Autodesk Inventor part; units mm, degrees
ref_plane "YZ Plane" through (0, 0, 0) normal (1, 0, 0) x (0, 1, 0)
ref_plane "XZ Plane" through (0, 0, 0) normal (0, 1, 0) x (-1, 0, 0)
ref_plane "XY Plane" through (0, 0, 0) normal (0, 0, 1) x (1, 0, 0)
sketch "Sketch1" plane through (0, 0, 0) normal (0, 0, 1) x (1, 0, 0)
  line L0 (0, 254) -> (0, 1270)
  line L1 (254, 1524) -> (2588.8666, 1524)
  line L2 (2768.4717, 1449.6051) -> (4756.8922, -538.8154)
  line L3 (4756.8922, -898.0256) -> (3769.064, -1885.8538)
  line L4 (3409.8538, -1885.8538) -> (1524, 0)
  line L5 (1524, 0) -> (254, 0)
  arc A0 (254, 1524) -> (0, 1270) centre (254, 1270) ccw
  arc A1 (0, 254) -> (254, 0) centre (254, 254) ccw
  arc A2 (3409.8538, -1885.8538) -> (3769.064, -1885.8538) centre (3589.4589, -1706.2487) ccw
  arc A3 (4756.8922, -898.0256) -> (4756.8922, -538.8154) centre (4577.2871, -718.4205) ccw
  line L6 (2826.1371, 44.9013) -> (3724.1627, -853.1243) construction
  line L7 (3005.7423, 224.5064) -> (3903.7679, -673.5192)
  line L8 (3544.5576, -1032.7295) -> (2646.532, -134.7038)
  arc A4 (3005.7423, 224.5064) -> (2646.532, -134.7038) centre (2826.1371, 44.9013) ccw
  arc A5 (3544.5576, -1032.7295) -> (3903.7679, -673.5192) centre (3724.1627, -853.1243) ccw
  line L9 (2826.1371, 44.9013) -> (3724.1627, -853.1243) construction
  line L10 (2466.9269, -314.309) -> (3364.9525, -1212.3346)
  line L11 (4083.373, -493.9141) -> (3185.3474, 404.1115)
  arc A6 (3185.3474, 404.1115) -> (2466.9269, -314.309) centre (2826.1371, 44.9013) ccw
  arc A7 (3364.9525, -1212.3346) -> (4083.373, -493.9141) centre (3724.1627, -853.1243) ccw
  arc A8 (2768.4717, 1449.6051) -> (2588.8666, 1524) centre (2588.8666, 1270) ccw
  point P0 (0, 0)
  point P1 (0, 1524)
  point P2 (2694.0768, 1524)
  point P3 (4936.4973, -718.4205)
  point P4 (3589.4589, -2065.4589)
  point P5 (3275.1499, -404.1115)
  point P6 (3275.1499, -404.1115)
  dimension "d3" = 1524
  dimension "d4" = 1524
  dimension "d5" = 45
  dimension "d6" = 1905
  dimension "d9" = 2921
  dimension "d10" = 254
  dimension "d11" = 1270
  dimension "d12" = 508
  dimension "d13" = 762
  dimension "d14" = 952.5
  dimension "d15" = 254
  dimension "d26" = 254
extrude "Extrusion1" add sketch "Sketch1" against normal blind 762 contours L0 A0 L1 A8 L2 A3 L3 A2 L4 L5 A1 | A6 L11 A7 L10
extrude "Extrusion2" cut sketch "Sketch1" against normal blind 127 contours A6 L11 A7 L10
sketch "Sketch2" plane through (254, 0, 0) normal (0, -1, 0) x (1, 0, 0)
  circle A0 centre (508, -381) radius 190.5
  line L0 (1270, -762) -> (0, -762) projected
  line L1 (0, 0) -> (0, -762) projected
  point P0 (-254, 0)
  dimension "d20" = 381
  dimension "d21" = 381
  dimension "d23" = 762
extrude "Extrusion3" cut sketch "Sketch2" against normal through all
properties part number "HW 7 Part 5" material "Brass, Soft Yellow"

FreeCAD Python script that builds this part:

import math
import FreeCAD as App
import Part
import Sketcher

V = App.Vector
Q = App.Units.Quantity

doc = App.newDocument("Part")
params = doc.addObject("Spreadsheet::Sheet", "Params")
for row, (alias, value) in enumerate([
    ("sketch1_radius", "10 in"),
    ("sketch1_width", "50 in"),
    ("sketch1_length", "50 in"),
    ("sketch1_length2", "105 in"),
    ("sketch1_length3", "55 in"),
    ("pad1_length", "30 in"),
    ("sketch2_radius", "20 in"),
    ("sketch2_radius2", "10 in"),
    ("sketch2_length", "50 in"),
    ("pocket1_length", "5 in"),
    ("sketch3_diameter", "15 in"),
], start=1):
    params.set(f"A{row}", alias)
    params.set(f"B{row}", "=" + value)
    params.setAlias(f"B{row}", alias)

body = doc.addObject("PartDesign::Body", "Body")

sketch1 = body.newObject("Sketcher::SketchObject", "Sketch")
sketch1.AttachmentSupport = (doc.getObject("XY_Plane"), [""])
sketch1.MapMode = "FlatFace"
sketch1.addGeometry([
    Part.LineSegment(V(0, 1270, 0), V(0, 254, 0)),
    Part.ArcOfCircle(Part.Circle(V(254, 254, 0), V(0, 0, 1), 254), math.radians(180), math.radians(270)),
    Part.LineSegment(V(254, 0, 0), V(1524, 0, 0)),
    Part.LineSegment(V(1524, 0, 0), V(3410, -1886, 0)),
    Part.ArcOfCircle(Part.Circle(V(3589, -1706, 0), V(0, 0, 1), 254), math.radians(-135), math.radians(-45)),
    Part.LineSegment(V(3769, -1886, 0), V(4757, -898, 0)),
    Part.ArcOfCircle(Part.Circle(V(4577, -718, 0), V(0, 0, 1), 254), math.radians(-45), math.radians(45)),
    Part.LineSegment(V(4757, -539, 0), V(2768, 1450, 0)),
    Part.ArcOfCircle(Part.Circle(V(2589, 1270, 0), V(0, 0, 1), 254), math.radians(45), math.radians(90)),
    Part.LineSegment(V(2589, 1524, 0), V(254, 1524, 0)),
    Part.ArcOfCircle(Part.Circle(V(254, 1270, 0), V(0, 0, 1), 254), math.radians(90), math.radians(180)),
    Part.ArcOfCircle(Part.Circle(V(2826, 45, 0), V(0, 0, 1), 254), math.radians(45), math.radians(225)),
    Part.LineSegment(V(3006, 225, 0), V(3904, -674, 0)),
    Part.ArcOfCircle(Part.Circle(V(3724, -853, 0), V(0, 0, 1), 254), math.radians(-135), math.radians(45)),
    Part.LineSegment(V(3545, -1033, 0), V(2647, -135, 0)),
], False)
sketch1.addConstraint([
    Sketcher.Constraint("Tangent", 0, 2, 1, 1),
    Sketcher.Constraint("Tangent", 1, 2, 2, 1),
    Sketcher.Constraint("Coincident", 2, 2, 3, 1),
    Sketcher.Constraint("Tangent", 3, 2, 4, 1),
    Sketcher.Constraint("Tangent", 4, 2, 5, 1),
    Sketcher.Constraint("Tangent", 5, 2, 6, 1),
    Sketcher.Constraint("Tangent", 6, 2, 7, 1),
    Sketcher.Constraint("Tangent", 7, 2, 8, 1),
    Sketcher.Constraint("Tangent", 8, 2, 9, 1),
    Sketcher.Constraint("Tangent", 9, 2, 10, 1),
    Sketcher.Constraint("Tangent", 10, 2, 0, 1),
    Sketcher.Constraint("Tangent", 11, 1, 12, 1),
    Sketcher.Constraint("Tangent", 12, 2, 13, 2),
    Sketcher.Constraint("Tangent", 13, 1, 14, 1),
    Sketcher.Constraint("Tangent", 14, 2, 11, 2),
    Sketcher.Constraint("Vertical", 0),
    Sketcher.Constraint("Horizontal", 2),
    Sketcher.Constraint("Horizontal", 9),
    Sketcher.Constraint("Equal", 1, 4),
    Sketcher.Constraint("Equal", 4, 6),
    Sketcher.Constraint("Equal", 6, 8),
    Sketcher.Constraint("Equal", 8, 10),
    Sketcher.Constraint("Equal", 10, 11),
    Sketcher.Constraint("Equal", 11, 13),
    Sketcher.Constraint("PointOnObject", 0, 2, -2),
    Sketcher.Constraint("PointOnObject", 1, 2, -1),
    Sketcher.Constraint("Perpendicular", 3, 5),
    Sketcher.Constraint("Perpendicular", 5, 7),
    Sketcher.Constraint("Parallel", 7, 12),
    Sketcher.Constraint("Radius", 1, Q("10 in")),
    Sketcher.Constraint("DistanceX", 2, 1, 2, 2, Q("50 in")),
    Sketcher.Constraint("Distance", 12, Q("50 in")),
    Sketcher.Constraint("DistanceY", -1, 1, 8, 3, Q("50 in")),
    Sketcher.Constraint("Angle", 3, Q("-45 deg")),
    Sketcher.Constraint("Distance", 3, Q("105 in")),
    Sketcher.Constraint("Distance", 5, Q("55 in")),
    Sketcher.Constraint("DistanceX", -1, 1, 11, 1, Q("118.3363 in")),
    Sketcher.Constraint("DistanceY", 12, 2, -1, 1, Q("26.5165 in")),
])
sketch1.setExpression("Constraints[29]", "Params.sketch1_radius")
sketch1.setExpression("Constraints[30]", "Params.sketch1_width")
sketch1.setExpression("Constraints[31]", "Params.sketch1_length")
sketch1.setExpression("Constraints[34]", "Params.sketch1_length2")
sketch1.setExpression("Constraints[35]", "Params.sketch1_length3")
pad1 = body.newObject("PartDesign::Pad", "Pad")
pad1.Profile = sketch1
pad1.setExpression("Length", "Params.pad1_length")
pad1.Reversed = True

sketch2 = body.newObject("Sketcher::SketchObject", "Sketch001")
sketch2.AttachmentSupport = (doc.getObject("XY_Plane"), [""])
sketch2.MapMode = "FlatFace"
sketch2.addGeometry([
    Part.ArcOfCircle(Part.Circle(V(2826, 45, 0), V(0, 0, 1), 508), math.radians(45), math.radians(225)),
    Part.LineSegment(V(2467, -314, 0), V(3365, -1212, 0)),
    Part.ArcOfCircle(Part.Circle(V(3724, -853, 0), V(0, 0, 1), 508), math.radians(-135), math.radians(45)),
    Part.LineSegment(V(4083, -494, 0), V(3185, 404, 0)),
    Part.ArcOfCircle(Part.Circle(V(2826, 45, 0), V(0, 0, 1), 254), math.radians(45), math.radians(225)),
    Part.LineSegment(V(3006, 225, 0), V(3904, -674, 0)),
    Part.ArcOfCircle(Part.Circle(V(3724, -853, 0), V(0, 0, 1), 254), math.radians(-135), math.radians(45)),
    Part.LineSegment(V(3545, -1033, 0), V(2647, -135, 0)),
], False)
sketch2.addConstraint([
    Sketcher.Constraint("Tangent", 0, 2, 1, 1),
    Sketcher.Constraint("Tangent", 1, 2, 2, 1),
    Sketcher.Constraint("Tangent", 2, 2, 3, 1),
    Sketcher.Constraint("Tangent", 3, 2, 0, 1),
    Sketcher.Constraint("Tangent", 4, 1, 5, 1),
    Sketcher.Constraint("Tangent", 5, 2, 6, 2),
    Sketcher.Constraint("Tangent", 6, 1, 7, 1),
    Sketcher.Constraint("Tangent", 7, 2, 4, 2),
    Sketcher.Constraint("Coincident", 4, 3, 0, 3),
    Sketcher.Constraint("Coincident", 6, 3, 2, 3),
    Sketcher.Constraint("Equal", 0, 2),
    Sketcher.Constraint("Equal", 4, 6),
    Sketcher.Constraint("Radius", 0, Q("20 in")),
    Sketcher.Constraint("Radius", 4, Q("10 in")),
    Sketcher.Constraint("Distance", 1, Q("50 in")),
    Sketcher.Constraint("Angle", 1, Q("-45 deg")),
    Sketcher.Constraint("DistanceY", 1, 2, -1, 1, Q("47.7297 in")),
    Sketcher.Constraint("DistanceX", -1, 1, 0, 3, 2826.137),
])
sketch2.setExpression("Constraints[12]", "Params.sketch2_radius")
sketch2.setExpression("Constraints[13]", "Params.sketch2_radius2")
sketch2.setExpression("Constraints[14]", "Params.sketch2_length")
pocket1 = body.newObject("PartDesign::Pocket", "Pocket")
pocket1.Profile = sketch2
pocket1.setExpression("Length", "Params.pocket1_length")

sketch3 = body.newObject("Sketcher::SketchObject", "Sketch002")
sketch3.AttachmentSupport = (doc.getObject("XZ_Plane"), [""])
sketch3.MapMode = "FlatFace"
sketch3.addGeometry(Part.Circle(V(762, -381, 0), V(0, 0, 1), 190), False)
sketch3.addConstraint([
    Sketcher.Constraint("Diameter", 0, Q("15 in")),
    Sketcher.Constraint("DistanceX", -1, 1, 0, 3, Q("30 in")),
    Sketcher.Constraint("DistanceY", 0, 3, -1, 1, Q("15 in")),
])
sketch3.setExpression("Constraints[0]", "Params.sketch3_diameter")
pocket2 = body.newObject("PartDesign::Pocket", "Pocket001")
pocket2.Profile = sketch3
pocket2.Type = "ThroughAll"

doc.recompute()
